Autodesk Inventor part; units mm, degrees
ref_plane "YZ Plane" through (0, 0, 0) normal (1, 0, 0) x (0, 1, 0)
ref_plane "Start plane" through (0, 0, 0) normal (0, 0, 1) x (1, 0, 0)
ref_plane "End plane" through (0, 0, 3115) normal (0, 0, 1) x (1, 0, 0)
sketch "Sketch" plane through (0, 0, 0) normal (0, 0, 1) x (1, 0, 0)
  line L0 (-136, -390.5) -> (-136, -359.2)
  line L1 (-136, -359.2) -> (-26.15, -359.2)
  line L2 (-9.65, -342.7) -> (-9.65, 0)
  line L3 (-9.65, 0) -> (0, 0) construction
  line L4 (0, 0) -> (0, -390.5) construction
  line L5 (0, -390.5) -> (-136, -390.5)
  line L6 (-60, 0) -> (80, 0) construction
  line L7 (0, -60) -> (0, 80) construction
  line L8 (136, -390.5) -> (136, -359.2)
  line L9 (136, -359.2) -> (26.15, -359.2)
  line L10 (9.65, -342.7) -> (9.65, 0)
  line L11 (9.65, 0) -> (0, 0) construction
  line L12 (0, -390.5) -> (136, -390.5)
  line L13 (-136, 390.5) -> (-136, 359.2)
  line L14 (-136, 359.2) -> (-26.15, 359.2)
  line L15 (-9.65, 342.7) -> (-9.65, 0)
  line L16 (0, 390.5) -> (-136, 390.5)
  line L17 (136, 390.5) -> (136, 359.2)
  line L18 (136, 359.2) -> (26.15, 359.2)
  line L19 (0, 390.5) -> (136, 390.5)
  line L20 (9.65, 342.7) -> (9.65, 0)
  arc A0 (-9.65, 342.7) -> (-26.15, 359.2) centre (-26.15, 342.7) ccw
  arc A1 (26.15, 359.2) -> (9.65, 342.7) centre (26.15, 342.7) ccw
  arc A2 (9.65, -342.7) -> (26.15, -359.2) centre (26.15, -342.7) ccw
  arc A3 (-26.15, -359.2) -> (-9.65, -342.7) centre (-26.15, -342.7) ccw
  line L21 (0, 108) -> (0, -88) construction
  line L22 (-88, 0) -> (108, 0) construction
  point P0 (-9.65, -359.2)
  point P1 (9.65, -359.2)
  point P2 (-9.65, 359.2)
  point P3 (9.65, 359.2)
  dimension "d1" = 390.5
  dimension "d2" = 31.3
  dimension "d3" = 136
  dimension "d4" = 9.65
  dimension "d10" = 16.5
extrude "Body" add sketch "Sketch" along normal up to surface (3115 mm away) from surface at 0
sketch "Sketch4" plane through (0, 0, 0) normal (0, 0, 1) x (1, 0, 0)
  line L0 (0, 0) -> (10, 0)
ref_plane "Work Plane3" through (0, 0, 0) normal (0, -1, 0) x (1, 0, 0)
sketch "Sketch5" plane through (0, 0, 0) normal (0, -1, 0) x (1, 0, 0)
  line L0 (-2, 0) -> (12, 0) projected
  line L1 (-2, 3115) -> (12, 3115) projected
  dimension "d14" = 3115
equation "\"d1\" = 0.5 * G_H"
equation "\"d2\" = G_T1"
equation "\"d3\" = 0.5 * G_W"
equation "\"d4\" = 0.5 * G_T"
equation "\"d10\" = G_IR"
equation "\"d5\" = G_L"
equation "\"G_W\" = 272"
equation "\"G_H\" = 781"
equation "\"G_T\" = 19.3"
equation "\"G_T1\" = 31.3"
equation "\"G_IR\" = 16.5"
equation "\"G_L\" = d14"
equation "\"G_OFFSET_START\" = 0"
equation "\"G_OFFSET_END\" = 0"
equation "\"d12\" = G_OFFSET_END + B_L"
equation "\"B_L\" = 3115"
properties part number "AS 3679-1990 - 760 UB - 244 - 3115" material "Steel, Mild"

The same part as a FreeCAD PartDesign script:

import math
import FreeCAD as App
import Part
import Sketcher
Q = App.Units.Quantity

doc = App.newDocument("Part")
body = doc.addObject("PartDesign::Body", "Body")

sketch1 = body.newObject("Sketcher::SketchObject", "Sketch")
sketch1.AttachmentSupport = (doc.getObject("XY_Plane"), [""])
sketch1.MapMode = "FlatFace"
sketch1.addGeometry([
    Part.LineSegment(App.Vector(-136, -359, 0), App.Vector(-136, -390, 0)),
    Part.LineSegment(App.Vector(-136, -390, 0), App.Vector(136, -390, 0)),
    Part.LineSegment(App.Vector(136, -390, 0), App.Vector(136, -359, 0)),
    Part.LineSegment(App.Vector(136, -359, 0), App.Vector(26, -359, 0)),
    Part.ArcOfCircle(Part.Circle(App.Vector(26, -343, 0), App.Vector(0, 0, 1), 16), math.radians(180), math.radians(270)),
    Part.LineSegment(App.Vector(10, -343, 0), App.Vector(10, 343, 0)),
    Part.ArcOfCircle(Part.Circle(App.Vector(26, 343, 0), App.Vector(0, 0, 1), 16), math.radians(90), math.radians(180)),
    Part.LineSegment(App.Vector(26, 359, 0), App.Vector(136, 359, 0)),
    Part.LineSegment(App.Vector(136, 359, 0), App.Vector(136, 390, 0)),
    Part.LineSegment(App.Vector(136, 390, 0), App.Vector(-136, 390, 0)),
    Part.LineSegment(App.Vector(-136, 390, 0), App.Vector(-136, 359, 0)),
    Part.LineSegment(App.Vector(-136, 359, 0), App.Vector(-26, 359, 0)),
    Part.ArcOfCircle(Part.Circle(App.Vector(-26, 343, 0), App.Vector(0, 0, 1), 16), math.radians(0), math.radians(90)),
    Part.LineSegment(App.Vector(-10, 343, 0), App.Vector(-10, -343, 0)),
    Part.ArcOfCircle(Part.Circle(App.Vector(-26, -343, 0), App.Vector(0, 0, 1), 16), math.radians(-90), math.radians(0)),
    Part.LineSegment(App.Vector(-26, -359, 0), App.Vector(-136, -359, 0)),
], False)
sketch1.addConstraint([
    Sketcher.Constraint("Coincident", 0, 2, 1, 1),
    Sketcher.Constraint("Coincident", 1, 2, 2, 1),
    Sketcher.Constraint("Coincident", 2, 2, 3, 1),
    Sketcher.Constraint("Tangent", 3, 2, 4, 2),
    Sketcher.Constraint("Tangent", 4, 1, 5, 1),
    Sketcher.Constraint("Tangent", 5, 2, 6, 2),
    Sketcher.Constraint("Tangent", 6, 1, 7, 1),
    Sketcher.Constraint("Coincident", 7, 2, 8, 1),
    Sketcher.Constraint("Coincident", 8, 2, 9, 1),
    Sketcher.Constraint("Coincident", 9, 2, 10, 1),
    Sketcher.Constraint("Coincident", 10, 2, 11, 1),
    Sketcher.Constraint("Tangent", 11, 2, 12, 2),
    Sketcher.Constraint("Tangent", 12, 1, 13, 1),
    Sketcher.Constraint("Tangent", 13, 2, 14, 2),
    Sketcher.Constraint("Tangent", 14, 1, 15, 1),
    Sketcher.Constraint("Coincident", 15, 2, 0, 1),
    Sketcher.Constraint("Vertical", 0),
    Sketcher.Constraint("Horizontal", 1),
    Sketcher.Constraint("Vertical", 2),
    Sketcher.Constraint("Horizontal", 3),
    Sketcher.Constraint("Vertical", 5),
    Sketcher.Constraint("Horizontal", 7),
    Sketcher.Constraint("Vertical", 8),
    Sketcher.Constraint("Horizontal", 9),
    Sketcher.Constraint("Vertical", 10),
    Sketcher.Constraint("Horizontal", 11),
    Sketcher.Constraint("Vertical", 13),
    Sketcher.Constraint("Horizontal", 15),
    Sketcher.Constraint("Equal", 4, 6),
    Sketcher.Constraint("Equal", 6, 12),
    Sketcher.Constraint("Equal", 12, 14),
    Sketcher.Constraint("Symmetric", 4, 3, 12, 3, -1, 1),
    Sketcher.Constraint("Symmetric", 0, 2, 8, 2, -1, 1),
    Sketcher.Constraint("Symmetric", 7, 2, 10, 2, -2),
    Sketcher.Constraint("Symmetric", 2, 2, 15, 2, -2),
    Sketcher.Constraint("Radius", 4, Q("16.5 mm")),
    Sketcher.Constraint("DistanceY", 0, 2, 0, 1, Q("31.3 mm")),
    Sketcher.Constraint("DistanceX", 0, 2, -1, 1, Q("136 mm")),
    Sketcher.Constraint("DistanceY", 0, 2, -1, 1, Q("390.5 mm")),
    Sketcher.Constraint("DistanceX", -1, 1, 4, 1, Q("9.65 mm")),
])
pad1 = body.newObject("PartDesign::Pad", "Pad")
pad1.Profile = sketch1
pad1.Length = 3115

doc.recompute()
